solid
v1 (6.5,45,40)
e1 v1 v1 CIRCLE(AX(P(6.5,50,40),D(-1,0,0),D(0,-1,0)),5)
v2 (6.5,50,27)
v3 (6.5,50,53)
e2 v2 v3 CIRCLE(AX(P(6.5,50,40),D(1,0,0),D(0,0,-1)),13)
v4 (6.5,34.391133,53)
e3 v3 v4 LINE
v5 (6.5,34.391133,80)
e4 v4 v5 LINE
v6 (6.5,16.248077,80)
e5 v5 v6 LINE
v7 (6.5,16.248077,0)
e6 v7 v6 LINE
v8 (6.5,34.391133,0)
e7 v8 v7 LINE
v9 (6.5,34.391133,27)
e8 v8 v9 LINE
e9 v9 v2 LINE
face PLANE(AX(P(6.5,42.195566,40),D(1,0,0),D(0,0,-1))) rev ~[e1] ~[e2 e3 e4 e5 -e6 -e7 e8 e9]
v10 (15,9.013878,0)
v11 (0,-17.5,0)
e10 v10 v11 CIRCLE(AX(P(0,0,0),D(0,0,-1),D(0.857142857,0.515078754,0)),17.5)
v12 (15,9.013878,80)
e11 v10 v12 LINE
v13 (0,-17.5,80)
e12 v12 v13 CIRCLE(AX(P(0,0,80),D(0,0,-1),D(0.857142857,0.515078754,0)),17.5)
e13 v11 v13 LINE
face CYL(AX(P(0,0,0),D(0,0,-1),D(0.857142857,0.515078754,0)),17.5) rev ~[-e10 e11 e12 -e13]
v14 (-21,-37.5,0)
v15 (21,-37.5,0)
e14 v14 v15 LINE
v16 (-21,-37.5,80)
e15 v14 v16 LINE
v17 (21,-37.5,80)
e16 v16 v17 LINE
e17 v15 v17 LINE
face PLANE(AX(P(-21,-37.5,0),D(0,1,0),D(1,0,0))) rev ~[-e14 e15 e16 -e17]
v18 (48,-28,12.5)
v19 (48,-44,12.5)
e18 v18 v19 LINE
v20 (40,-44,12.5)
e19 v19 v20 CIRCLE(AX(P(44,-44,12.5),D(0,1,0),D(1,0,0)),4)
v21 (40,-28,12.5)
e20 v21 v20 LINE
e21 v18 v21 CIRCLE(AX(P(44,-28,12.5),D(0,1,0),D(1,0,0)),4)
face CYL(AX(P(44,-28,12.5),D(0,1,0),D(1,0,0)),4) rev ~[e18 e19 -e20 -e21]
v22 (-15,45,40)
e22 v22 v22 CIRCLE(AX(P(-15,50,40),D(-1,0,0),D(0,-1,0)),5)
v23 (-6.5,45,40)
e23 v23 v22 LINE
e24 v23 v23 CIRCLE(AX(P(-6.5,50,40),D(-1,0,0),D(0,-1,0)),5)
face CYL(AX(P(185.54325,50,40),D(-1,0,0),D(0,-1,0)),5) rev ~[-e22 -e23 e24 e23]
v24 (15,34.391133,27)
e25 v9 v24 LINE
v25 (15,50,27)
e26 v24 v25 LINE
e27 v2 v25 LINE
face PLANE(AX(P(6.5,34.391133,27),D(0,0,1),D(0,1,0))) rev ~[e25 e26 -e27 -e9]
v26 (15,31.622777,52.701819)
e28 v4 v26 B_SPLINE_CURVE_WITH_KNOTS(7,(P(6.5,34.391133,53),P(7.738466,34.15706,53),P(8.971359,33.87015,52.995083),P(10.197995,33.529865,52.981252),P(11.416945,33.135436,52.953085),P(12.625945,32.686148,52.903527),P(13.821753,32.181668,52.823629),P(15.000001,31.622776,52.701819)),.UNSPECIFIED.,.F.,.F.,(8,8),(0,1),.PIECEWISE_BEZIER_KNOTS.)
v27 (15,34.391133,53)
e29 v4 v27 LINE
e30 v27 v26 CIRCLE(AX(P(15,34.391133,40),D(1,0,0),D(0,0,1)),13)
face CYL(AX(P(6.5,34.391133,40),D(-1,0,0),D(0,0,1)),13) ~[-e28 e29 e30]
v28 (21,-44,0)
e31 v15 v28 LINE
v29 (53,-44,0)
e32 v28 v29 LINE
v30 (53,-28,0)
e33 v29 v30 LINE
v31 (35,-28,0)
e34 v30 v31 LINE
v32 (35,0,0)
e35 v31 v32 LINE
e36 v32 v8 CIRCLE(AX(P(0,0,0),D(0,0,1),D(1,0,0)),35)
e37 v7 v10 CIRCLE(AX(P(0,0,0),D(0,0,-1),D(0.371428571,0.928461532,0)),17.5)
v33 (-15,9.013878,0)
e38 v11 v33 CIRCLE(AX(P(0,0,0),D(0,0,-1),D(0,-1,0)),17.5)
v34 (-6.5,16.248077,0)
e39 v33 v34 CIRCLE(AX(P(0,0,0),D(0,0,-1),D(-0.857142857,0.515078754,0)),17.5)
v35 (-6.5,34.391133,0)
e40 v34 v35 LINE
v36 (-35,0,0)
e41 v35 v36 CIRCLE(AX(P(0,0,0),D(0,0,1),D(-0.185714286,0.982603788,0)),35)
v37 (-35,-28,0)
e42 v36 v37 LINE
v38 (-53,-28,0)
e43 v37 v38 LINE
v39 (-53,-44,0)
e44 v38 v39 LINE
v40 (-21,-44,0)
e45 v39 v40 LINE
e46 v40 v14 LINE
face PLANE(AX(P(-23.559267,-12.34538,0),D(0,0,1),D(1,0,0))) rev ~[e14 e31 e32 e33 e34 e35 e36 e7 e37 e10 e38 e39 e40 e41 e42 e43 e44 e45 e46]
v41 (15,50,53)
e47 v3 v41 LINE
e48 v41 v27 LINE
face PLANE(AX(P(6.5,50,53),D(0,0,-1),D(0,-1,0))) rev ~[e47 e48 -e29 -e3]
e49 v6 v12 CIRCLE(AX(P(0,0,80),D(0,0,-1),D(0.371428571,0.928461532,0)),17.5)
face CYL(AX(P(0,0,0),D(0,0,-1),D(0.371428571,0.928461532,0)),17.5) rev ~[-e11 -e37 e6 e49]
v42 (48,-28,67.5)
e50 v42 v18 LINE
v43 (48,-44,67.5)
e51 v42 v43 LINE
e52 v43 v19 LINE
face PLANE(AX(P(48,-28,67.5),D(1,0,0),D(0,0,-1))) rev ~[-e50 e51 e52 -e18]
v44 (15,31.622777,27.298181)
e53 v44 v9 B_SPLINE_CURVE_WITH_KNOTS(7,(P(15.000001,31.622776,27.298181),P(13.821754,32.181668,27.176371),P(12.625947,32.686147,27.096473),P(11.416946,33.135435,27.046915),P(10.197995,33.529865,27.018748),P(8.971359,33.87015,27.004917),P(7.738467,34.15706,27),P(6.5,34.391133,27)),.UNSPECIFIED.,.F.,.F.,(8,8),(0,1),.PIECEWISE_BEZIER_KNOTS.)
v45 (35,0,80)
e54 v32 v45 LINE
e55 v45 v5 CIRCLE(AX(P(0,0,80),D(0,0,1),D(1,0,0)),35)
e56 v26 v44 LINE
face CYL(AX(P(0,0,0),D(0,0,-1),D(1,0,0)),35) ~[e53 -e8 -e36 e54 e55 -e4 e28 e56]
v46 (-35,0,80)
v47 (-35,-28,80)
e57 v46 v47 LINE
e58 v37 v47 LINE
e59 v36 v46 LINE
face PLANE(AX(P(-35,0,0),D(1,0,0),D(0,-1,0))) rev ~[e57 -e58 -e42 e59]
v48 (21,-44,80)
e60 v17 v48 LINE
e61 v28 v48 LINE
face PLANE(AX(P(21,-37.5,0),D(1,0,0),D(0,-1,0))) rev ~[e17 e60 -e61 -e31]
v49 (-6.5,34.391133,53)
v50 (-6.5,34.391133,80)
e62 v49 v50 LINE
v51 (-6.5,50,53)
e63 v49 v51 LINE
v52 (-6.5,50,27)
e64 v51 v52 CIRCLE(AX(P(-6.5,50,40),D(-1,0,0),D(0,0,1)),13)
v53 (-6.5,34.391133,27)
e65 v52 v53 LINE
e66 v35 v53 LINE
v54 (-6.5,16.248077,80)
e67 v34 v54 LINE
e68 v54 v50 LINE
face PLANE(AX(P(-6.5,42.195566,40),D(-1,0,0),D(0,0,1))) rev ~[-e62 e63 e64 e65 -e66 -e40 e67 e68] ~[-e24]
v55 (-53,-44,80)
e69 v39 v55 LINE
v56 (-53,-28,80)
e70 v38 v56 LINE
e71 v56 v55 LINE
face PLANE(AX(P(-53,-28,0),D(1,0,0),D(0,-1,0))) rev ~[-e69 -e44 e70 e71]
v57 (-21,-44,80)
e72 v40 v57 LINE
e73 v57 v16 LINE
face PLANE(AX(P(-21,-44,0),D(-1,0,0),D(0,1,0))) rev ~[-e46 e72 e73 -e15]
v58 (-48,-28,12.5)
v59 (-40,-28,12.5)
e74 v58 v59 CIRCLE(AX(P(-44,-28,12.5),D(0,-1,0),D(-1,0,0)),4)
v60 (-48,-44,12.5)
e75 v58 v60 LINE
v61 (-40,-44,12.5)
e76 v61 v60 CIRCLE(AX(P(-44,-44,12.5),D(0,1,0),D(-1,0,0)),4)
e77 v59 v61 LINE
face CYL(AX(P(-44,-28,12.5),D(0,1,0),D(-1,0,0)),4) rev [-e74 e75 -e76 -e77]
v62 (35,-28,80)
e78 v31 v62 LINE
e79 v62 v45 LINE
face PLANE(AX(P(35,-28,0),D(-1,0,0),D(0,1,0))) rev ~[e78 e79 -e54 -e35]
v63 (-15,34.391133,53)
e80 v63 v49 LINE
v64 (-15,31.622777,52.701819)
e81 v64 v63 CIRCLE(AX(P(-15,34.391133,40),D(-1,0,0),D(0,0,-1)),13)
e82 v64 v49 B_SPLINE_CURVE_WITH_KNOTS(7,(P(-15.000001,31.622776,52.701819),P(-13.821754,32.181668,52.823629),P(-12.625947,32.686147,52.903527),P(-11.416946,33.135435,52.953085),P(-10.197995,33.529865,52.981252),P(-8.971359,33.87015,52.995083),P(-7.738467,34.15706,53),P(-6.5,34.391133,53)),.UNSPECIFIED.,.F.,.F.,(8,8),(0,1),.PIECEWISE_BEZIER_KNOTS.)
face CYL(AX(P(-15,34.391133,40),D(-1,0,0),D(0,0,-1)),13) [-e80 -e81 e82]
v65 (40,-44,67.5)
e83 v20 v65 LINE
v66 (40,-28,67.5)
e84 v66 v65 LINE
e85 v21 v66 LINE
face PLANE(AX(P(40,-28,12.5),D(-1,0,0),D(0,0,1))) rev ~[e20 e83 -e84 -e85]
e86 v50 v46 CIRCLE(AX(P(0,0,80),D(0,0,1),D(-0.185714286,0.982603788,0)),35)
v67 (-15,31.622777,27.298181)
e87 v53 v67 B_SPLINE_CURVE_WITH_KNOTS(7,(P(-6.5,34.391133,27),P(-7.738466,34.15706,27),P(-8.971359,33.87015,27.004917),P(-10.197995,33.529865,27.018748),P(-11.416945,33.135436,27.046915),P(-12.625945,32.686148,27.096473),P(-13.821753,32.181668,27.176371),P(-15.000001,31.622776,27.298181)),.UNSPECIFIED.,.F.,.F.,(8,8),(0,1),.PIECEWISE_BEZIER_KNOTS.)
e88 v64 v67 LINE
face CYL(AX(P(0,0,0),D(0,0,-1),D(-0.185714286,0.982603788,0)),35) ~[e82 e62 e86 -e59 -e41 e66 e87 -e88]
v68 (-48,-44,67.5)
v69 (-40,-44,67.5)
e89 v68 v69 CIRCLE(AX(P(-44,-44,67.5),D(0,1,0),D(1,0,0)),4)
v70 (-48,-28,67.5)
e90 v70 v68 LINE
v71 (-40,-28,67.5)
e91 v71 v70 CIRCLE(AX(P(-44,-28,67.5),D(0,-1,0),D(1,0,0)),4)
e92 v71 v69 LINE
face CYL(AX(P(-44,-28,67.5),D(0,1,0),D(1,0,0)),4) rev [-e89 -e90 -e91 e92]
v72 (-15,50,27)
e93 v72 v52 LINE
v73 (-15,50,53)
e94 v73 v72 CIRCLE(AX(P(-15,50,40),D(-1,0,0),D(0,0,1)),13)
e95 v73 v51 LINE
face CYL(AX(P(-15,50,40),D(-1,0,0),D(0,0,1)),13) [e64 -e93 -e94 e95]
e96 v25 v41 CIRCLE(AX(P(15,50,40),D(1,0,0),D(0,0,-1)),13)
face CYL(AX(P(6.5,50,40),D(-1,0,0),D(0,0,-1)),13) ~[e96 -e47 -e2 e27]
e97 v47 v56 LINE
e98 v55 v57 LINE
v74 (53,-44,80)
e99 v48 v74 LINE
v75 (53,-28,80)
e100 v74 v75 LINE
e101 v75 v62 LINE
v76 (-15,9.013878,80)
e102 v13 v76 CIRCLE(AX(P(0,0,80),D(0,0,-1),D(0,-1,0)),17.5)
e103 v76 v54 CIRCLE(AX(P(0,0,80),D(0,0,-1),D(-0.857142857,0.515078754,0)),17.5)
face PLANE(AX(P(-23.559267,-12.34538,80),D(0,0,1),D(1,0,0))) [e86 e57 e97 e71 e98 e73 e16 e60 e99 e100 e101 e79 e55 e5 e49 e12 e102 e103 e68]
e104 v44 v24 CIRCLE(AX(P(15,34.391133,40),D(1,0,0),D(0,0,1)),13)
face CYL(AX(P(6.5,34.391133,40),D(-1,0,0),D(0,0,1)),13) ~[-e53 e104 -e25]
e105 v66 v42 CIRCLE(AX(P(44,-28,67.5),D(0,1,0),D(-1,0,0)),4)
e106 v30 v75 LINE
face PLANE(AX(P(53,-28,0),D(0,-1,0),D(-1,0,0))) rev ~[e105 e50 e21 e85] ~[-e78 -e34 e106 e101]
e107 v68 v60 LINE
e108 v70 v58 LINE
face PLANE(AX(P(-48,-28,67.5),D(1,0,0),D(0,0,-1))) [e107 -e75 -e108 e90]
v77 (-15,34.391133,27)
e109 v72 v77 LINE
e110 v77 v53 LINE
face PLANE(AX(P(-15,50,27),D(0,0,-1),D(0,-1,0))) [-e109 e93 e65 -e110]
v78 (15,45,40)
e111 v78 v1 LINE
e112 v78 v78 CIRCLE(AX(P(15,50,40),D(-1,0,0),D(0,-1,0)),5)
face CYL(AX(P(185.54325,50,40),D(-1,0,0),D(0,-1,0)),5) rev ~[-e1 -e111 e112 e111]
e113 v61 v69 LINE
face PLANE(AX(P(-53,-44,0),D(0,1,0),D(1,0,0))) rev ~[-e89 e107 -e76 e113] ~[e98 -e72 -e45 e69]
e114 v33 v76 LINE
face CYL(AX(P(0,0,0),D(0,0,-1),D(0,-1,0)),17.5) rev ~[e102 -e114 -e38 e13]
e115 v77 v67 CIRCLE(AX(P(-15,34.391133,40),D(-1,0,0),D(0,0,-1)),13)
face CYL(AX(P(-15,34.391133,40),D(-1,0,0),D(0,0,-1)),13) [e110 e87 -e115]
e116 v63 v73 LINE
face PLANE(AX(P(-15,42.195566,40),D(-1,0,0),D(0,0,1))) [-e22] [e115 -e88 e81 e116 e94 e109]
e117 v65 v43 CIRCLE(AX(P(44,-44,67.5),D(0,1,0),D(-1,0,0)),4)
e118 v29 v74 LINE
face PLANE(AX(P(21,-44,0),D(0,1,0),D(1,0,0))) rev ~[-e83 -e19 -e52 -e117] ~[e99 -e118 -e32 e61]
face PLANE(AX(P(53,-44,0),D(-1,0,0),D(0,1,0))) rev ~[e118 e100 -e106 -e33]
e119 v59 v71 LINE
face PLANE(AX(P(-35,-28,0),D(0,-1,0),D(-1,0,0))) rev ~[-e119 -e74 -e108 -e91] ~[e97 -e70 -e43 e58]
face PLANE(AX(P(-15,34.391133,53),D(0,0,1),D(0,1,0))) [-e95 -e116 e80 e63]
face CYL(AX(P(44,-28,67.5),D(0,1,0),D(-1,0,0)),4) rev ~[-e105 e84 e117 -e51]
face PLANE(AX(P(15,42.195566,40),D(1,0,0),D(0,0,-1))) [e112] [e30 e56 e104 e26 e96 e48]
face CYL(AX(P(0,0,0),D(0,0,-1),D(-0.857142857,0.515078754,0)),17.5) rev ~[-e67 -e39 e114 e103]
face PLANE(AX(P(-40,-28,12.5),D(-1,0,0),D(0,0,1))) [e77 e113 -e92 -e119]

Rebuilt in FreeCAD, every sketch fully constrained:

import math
import FreeCAD as App
import Part
import Sketcher

V = App.Vector
Q = App.Units.Quantity

doc = App.newDocument("Part")
params = doc.addObject("Spreadsheet::Sheet", "Params")
for row, (alias, value) in enumerate([
    ("sketch1_radius", "35 mm"),
    ("sketch1_radius2", "17.5 mm"),
    ("sketch1_width", "42 mm"),
    ("sketch1_width2", "32 mm"),
    ("sketch1_height", "16 mm"),
    ("pad1_length", "80 mm"),
    ("sketch2_radius", "13 mm"),
    ("pad2_length", "8.5 mm"),
    ("sketch3_radius", "13 mm"),
    ("pad3_length", "8.5 mm"),
    ("sketch4_diameter", "10 mm"),
    ("hole_diameter", "10 mm"),
    ("sketch5_radius", "4 mm"),
    ("sketch5_height", "55 mm"),
], start=1):
    params.set(f"A{row}", alias)
    params.set(f"B{row}", "=" + value)
    params.setAlias(f"B{row}", alias)

body = doc.addObject("PartDesign::Body", "Body")

# Sketch on XY plane
sketch1 = doc.addObject("Sketcher::SketchObject", "Sketch")
body.addObject(sketch1)
sketch1.AttachmentSupport = (doc.XY_Plane, [""])
sketch1.MapMode = "FlatFace"
sketch1.addGeometry([
    Part.LineSegment(V(-21, -37.5, 0), V(21, -37.5, 0)),  # 0
    Part.LineSegment(V(21, -37.5, 0), V(21, -44, 0)),  # 1
    Part.LineSegment(V(21, -44, 0), V(53, -44, 0)),  # 2
    Part.LineSegment(V(53, -44, 0), V(53, -28, 0)),  # 3
    Part.LineSegment(V(53, -28, 0), V(35, -28, 0)),  # 4
    Part.LineSegment(V(35, -28, 0), V(35, 0, 0)),  # 5
    Part.ArcOfCircle(Part.Circle(V(0, 0, 0), V(0, 0, 1), 35), math.radians(0), math.radians(79.29722)),  # 6
    Part.LineSegment(V(6.5, 34.391133, 0), V(6.5, 16.248077, 0)),  # 7
    Part.ArcOfCircle(Part.Circle(V(0, 0, 0), V(0, 0, 1), 17.5), math.radians(31.002719), math.radians(68.196252)),  # 8
    Part.ArcOfCircle(Part.Circle(V(0, 0, 0), V(0, 0, 1), 17.5), math.radians(-90), math.radians(31.002719)),  # 9
    Part.ArcOfCircle(Part.Circle(V(0, 0, 0), V(0, 0, 1), 17.5), math.radians(148.997281), math.radians(270)),  # 10
    Part.ArcOfCircle(Part.Circle(V(0, 0, 0), V(0, 0, 1), 17.5), math.radians(111.803748), math.radians(148.997281)),  # 11
    Part.LineSegment(V(-6.5, 16.248077, 0), V(-6.5, 34.391133, 0)),  # 12
    Part.ArcOfCircle(Part.Circle(V(0, 0, 0), V(0, 0, 1), 35), math.radians(100.70278), math.radians(180)),  # 13
    Part.LineSegment(V(-35, 0, 0), V(-35, -28, 0)),  # 14
    Part.LineSegment(V(-35, -28, 0), V(-53, -28, 0)),  # 15
    Part.LineSegment(V(-53, -28, 0), V(-53, -44, 0)),  # 16
    Part.LineSegment(V(-53, -44, 0), V(-21, -44, 0)),  # 17
    Part.LineSegment(V(-21, -44, 0), V(-21, -37.5, 0)),  # 18
], False)
sketch1.addConstraint([
    Sketcher.Constraint("Coincident", 0, 2, 1, 1),
    Sketcher.Constraint("Coincident", 1, 2, 2, 1),
    Sketcher.Constraint("Coincident", 2, 2, 3, 1),
    Sketcher.Constraint("Coincident", 3, 2, 4, 1),
    Sketcher.Constraint("Coincident", 4, 2, 5, 1),
    Sketcher.Constraint("Tangent", 5, 2, 6, 1),
    Sketcher.Constraint("Coincident", 6, 2, 7, 1),
    Sketcher.Constraint("Coincident", 7, 2, 8, 2),
    Sketcher.Constraint("Tangent", 8, 1, 9, 2),
    Sketcher.Constraint("Tangent", 9, 1, 10, 2),
    Sketcher.Constraint("Tangent", 10, 1, 11, 2),
    Sketcher.Constraint("Coincident", 11, 1, 12, 1),
    Sketcher.Constraint("Coincident", 12, 2, 13, 1),
    Sketcher.Constraint("Tangent", 13, 2, 14, 1),
    Sketcher.Constraint("Coincident", 14, 2, 15, 1),
    Sketcher.Constraint("Coincident", 15, 2, 16, 1),
    Sketcher.Constraint("Coincident", 16, 2, 17, 1),
    Sketcher.Constraint("Coincident", 17, 2, 18, 1),
    Sketcher.Constraint("Coincident", 18, 2, 0, 1),
    Sketcher.Constraint("Horizontal", 0),
    Sketcher.Constraint("Vertical", 1),
    Sketcher.Constraint("Horizontal", 2),
    Sketcher.Constraint("Vertical", 3),
    Sketcher.Constraint("Horizontal", 4),
    Sketcher.Constraint("Vertical", 5),
    Sketcher.Constraint("Vertical", 7),
    Sketcher.Constraint("Vertical", 12),
    Sketcher.Constraint("Vertical", 14),
    Sketcher.Constraint("Horizontal", 15),
    Sketcher.Constraint("Vertical", 16),
    Sketcher.Constraint("Horizontal", 17),
    Sketcher.Constraint("Vertical", 18),
    Sketcher.Constraint("Coincident", 6, 3, -1, 1),
    Sketcher.Constraint("Coincident", 8, 3, -1, 1),
    Sketcher.Constraint("Coincident", 10, 3, -1, 1),
    Sketcher.Constraint("Coincident", 13, 3, -1, 1),
    Sketcher.Constraint("Equal", 10, 11),
    Sketcher.Constraint("Equal", 6, 13),
    Sketcher.Constraint("Symmetric", 3, 2, 15, 2, -2),
    Sketcher.Constraint("Symmetric", 1, 2, 17, 2, -2),
    Sketcher.Constraint("PointOnObject", 9, 1, -2),
    Sketcher.Constraint("Horizontal", 8, 1, 10, 1),
    Sketcher.Constraint("Horizontal", 7, 2, 11, 1),
    Sketcher.Constraint("Radius", 6, Q("35 mm")),
    Sketcher.Constraint("Radius", 8, Q("17.5 mm")),
    Sketcher.Constraint("DistanceX", 0, 1, 0, 2, Q("42 mm")),
    Sketcher.Constraint("DistanceX", 2, 1, 2, 2, Q("32 mm")),
    Sketcher.Constraint("DistanceY", 3, 1, 3, 2, Q("16 mm")),
    Sketcher.Constraint("DistanceY", 5, 1, 5, 2, Q("28 mm")),
    Sketcher.Constraint("DistanceY", 1, 2, 1, 1, Q("6.5 mm")),
    Sketcher.Constraint("DistanceX", -1, 1, 8, 1, Q("15 mm")),
    Sketcher.Constraint("DistanceX", 11, 1, 7, 2, Q("13 mm")),
])
sketch1.setExpression("Constraints[43]", "Params.sketch1_radius")
sketch1.setExpression("Constraints[44]", "Params.sketch1_radius2")
sketch1.setExpression("Constraints[45]", "Params.sketch1_width")
sketch1.setExpression("Constraints[46]", "Params.sketch1_width2")
sketch1.setExpression("Constraints[47]", "Params.sketch1_height")
pad1 = doc.addObject("PartDesign::Pad", "Pad")
body.addObject(pad1)
pad1.Profile = sketch1
pad1.setExpression("Length", "Params.pad1_length")

# Sketch on YZ plane
sketch2 = doc.addObject("Sketcher::SketchObject", "Sketch001")
body.addObject(sketch2)
sketch2.AttachmentSupport = (doc.YZ_Plane, [""])
sketch2.MapMode = "FlatFace"
sketch2.AttachmentOffset = App.Placement(V(0, 0, 6.5), App.Rotation())
sketch2.addGeometry([
    Part.LineSegment(V(50, 27, 0), V(34.391133, 27, 0)),
    Part.ArcOfCircle(Part.Circle(V(34.391133, 40, 0), V(0, 0, 1), 13), math.radians(90), math.radians(270)),
    Part.LineSegment(V(34.391133, 53, 0), V(50, 53, 0)),
    Part.ArcOfCircle(Part.Circle(V(50, 40, 0), V(0, 0, 1), 13), math.radians(-90), math.radians(90)),
], False)
sketch2.addConstraint([
    Sketcher.Constraint("Tangent", 0, 2, 1, 2),
    Sketcher.Constraint("Tangent", 1, 1, 2, 1),
    Sketcher.Constraint("Tangent", 2, 2, 3, 2),
    Sketcher.Constraint("Tangent", 3, 1, 0, 1),
    Sketcher.Constraint("Horizontal", 0),
    Sketcher.Constraint("Horizontal", 2),
    Sketcher.Constraint("Radius", 1, Q("13 mm")),
    Sketcher.Constraint("DistanceY", -1, 1, 1, 3, Q("40 mm")),
    Sketcher.Constraint("DistanceX", -1, 1, 3, 3, Q("50 mm")),
    Sketcher.Constraint("DistanceX", 0, 2, 0, 1, Q("15.608867 mm")),
])
sketch2.setExpression("Constraints[6]", "Params.sketch2_radius")
pad2 = doc.addObject("PartDesign::Pad", "Pad001")
body.addObject(pad2)
pad2.Profile = sketch2
pad2.setExpression("Length", "Params.pad2_length")

# Sketch on YZ plane
sketch3 = doc.addObject("Sketcher::SketchObject", "Sketch002")
body.addObject(sketch3)
sketch3.AttachmentSupport = (doc.YZ_Plane, [""])
sketch3.MapMode = "FlatFace"
sketch3.AttachmentOffset = App.Placement(V(0, 0, -15), App.Rotation())
sketch3.addGeometry([
    Part.LineSegment(V(50, 53, 0), V(34.391133, 53, 0)),
    Part.ArcOfCircle(Part.Circle(V(34.391133, 40, 0), V(0, 0, 1), 13), math.radians(90), math.radians(270)),
    Part.LineSegment(V(34.391133, 27, 0), V(50, 27, 0)),
    Part.ArcOfCircle(Part.Circle(V(50, 40, 0), V(0, 0, 1), 13), math.radians(-90), math.radians(90)),
], False)
sketch3.addConstraint([
    Sketcher.Constraint("Tangent", 0, 2, 1, 1),
    Sketcher.Constraint("Tangent", 1, 2, 2, 1),
    Sketcher.Constraint("Tangent", 2, 2, 3, 1),
    Sketcher.Constraint("Tangent", 3, 2, 0, 1),
    Sketcher.Constraint("Horizontal", 0),
    Sketcher.Constraint("Horizontal", 2),
    Sketcher.Constraint("Radius", 1, Q("13 mm")),
    Sketcher.Constraint("DistanceY", -1, 1, 1, 3, Q("40 mm")),
    Sketcher.Constraint("DistanceX", -1, 1, 3, 3, Q("50 mm")),
    Sketcher.Constraint("DistanceX", 0, 2, 0, 1, Q("15.608867 mm")),
])
sketch3.setExpression("Constraints[6]", "Params.sketch3_radius")
pad3 = doc.addObject("PartDesign::Pad", "Pad002")
body.addObject(pad3)
pad3.Profile = sketch3
pad3.setExpression("Length", "Params.pad3_length")

# Sketch on YZ plane
sketch4 = doc.addObject("Sketcher::SketchObject", "Sketch003")
body.addObject(sketch4)
sketch4.AttachmentSupport = (doc.YZ_Plane, [""])
sketch4.MapMode = "FlatFace"
sketch4.AttachmentOffset = App.Placement(V(0, 0, 15), App.Rotation())
sketch4.addGeometry(Part.Circle(V(50, 40, 0), V(0, 0, 1), 5), False)
sketch4.addConstraint([
    Sketcher.Constraint("Diameter", 0, Q("10 mm")),
    Sketcher.Constraint("DistanceX", -1, 1, 0, 3, Q("50 mm")),
    Sketcher.Constraint("DistanceY", -1, 1, 0, 3, Q("40 mm")),
])
sketch4.setExpression("Constraints[0]", "Params.sketch4_diameter")
doc.recompute()
hole = doc.addObject("PartDesign::Hole", "Hole")
body.addObject(hole)
hole.Profile = sketch4
hole.ThreadType = "None"
hole.setExpression("Diameter", "Params.hole_diameter")
hole.DepthType = "ThroughAll"

# Sketch on XZ plane
sketch5 = doc.addObject("Sketcher::SketchObject", "Sketch004")
body.addObject(sketch5)
sketch5.AttachmentSupport = (doc.XZ_Plane, [""])
sketch5.MapMode = "FlatFace"
sketch5.AttachmentOffset = App.Placement(V(0, 0, 28), App.Rotation())
sketch5.addGeometry([
    Part.LineSegment(V(-40, 67.5, 0), V(-40, 12.5, 0)),  # 0
    Part.ArcOfCircle(Part.Circle(V(-44, 12.5, 0), V(0, 0, 1), 4), math.radians(180), math.radians(360)),  # 1
    Part.LineSegment(V(-48, 12.5, 0), V(-48, 67.5, 0)),  # 2
    Part.ArcOfCircle(Part.Circle(V(-44, 67.5, 0), V(0, 0, 1), 4), math.radians(0), math.radians(180)),  # 3
    Part.LineSegment(V(40, 12.5, 0), V(40, 67.5, 0)),  # 4
    Part.ArcOfCircle(Part.Circle(V(44, 67.5, 0), V(0, 0, 1), 4), math.radians(0), math.radians(180)),  # 5
    Part.LineSegment(V(48, 67.5, 0), V(48, 12.5, 0)),  # 6
    Part.ArcOfCircle(Part.Circle(V(44, 12.5, 0), V(0, 0, 1), 4), math.radians(180), math.radians(360)),  # 7
], False)
sketch5.addConstraint([
    Sketcher.Constraint("Tangent", 0, 2, 1, 2),
    Sketcher.Constraint("Tangent", 1, 1, 2, 1),
    Sketcher.Constraint("Tangent", 2, 2, 3, 2),
    Sketcher.Constraint("Tangent", 3, 1, 0, 1),
    Sketcher.Constraint("Tangent", 4, 2, 5, 2),
    Sketcher.Constraint("Tangent", 5, 1, 6, 1),
    Sketcher.Constraint("Tangent", 6, 2, 7, 2),
    Sketcher.Constraint("Tangent", 7, 1, 4, 1),
    Sketcher.Constraint("Vertical", 0),
    Sketcher.Constraint("Vertical", 2),
    Sketcher.Constraint("Vertical", 4),
    Sketcher.Constraint("Vertical", 6),
    Sketcher.Constraint("Equal", 3, 5),
    Sketcher.Constraint("Symmetric", 3, 3, 5, 3, -2),
    Sketcher.Constraint("Horizontal", 1, 3, 7, 3),
    Sketcher.Constraint("Radius", 1, Q("4 mm")),
    Sketcher.Constraint("DistanceY", 0, 2, 0, 1, Q("55 mm")),
    Sketcher.Constraint("DistanceX", 1, 3, -1, 1, Q("44 mm")),
    Sketcher.Constraint("DistanceY", -1, 1, 1, 3, Q("12.5 mm")),
])
sketch5.setExpression("Constraints[15]", "Params.sketch5_radius")
sketch5.setExpression("Constraints[16]", "Params.sketch5_height")
pocket1 = doc.addObject("PartDesign::Pocket", "Pocket")
body.addObject(pocket1)
pocket1.Profile = sketch5
pocket1.Type = "ThroughAll"
pocket1.Reversed = True

doc.recompute()
